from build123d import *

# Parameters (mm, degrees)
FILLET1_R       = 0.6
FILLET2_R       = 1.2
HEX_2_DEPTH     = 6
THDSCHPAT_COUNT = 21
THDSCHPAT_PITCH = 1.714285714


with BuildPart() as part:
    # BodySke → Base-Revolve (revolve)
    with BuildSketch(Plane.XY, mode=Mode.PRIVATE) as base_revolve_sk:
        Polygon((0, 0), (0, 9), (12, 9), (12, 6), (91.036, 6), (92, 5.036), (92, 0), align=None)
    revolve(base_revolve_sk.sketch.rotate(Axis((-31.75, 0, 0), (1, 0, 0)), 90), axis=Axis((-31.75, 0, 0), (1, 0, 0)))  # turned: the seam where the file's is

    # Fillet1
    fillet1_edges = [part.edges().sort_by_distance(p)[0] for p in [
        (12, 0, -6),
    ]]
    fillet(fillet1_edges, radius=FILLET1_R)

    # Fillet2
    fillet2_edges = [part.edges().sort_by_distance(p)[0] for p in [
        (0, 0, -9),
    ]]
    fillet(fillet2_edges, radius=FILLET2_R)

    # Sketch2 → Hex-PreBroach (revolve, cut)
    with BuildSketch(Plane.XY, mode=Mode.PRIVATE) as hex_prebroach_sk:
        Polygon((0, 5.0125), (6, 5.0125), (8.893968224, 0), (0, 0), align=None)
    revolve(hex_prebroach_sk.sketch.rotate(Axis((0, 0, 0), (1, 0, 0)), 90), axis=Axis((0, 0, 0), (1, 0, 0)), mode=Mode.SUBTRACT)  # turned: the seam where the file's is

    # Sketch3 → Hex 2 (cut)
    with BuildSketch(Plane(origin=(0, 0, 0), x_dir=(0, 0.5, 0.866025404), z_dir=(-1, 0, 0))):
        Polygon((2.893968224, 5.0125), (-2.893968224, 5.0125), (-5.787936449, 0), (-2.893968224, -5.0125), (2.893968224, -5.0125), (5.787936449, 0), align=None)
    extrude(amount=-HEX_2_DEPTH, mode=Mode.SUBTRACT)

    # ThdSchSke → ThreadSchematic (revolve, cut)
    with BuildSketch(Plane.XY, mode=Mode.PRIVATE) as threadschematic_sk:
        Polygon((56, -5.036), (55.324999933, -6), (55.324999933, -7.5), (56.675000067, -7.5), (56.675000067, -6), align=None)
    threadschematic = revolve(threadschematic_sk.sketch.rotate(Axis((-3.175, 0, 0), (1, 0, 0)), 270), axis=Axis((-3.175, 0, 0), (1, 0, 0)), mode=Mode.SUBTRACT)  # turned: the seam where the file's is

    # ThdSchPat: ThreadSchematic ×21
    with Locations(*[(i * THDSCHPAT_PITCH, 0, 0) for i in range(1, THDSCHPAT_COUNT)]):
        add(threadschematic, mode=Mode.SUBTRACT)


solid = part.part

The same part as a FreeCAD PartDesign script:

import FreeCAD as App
import Part
import Sketcher
from FreeCAD import Vector
Q = App.Units.Quantity


def edges_at(feature, points):
    """Names of the edges that pass closest to the given points."""
    edges = feature.Shape.Edges
    near = lambda p: min(range(len(edges)), key=lambda i: edges[i].distToShape(Part.Vertex(*p))[0])
    return sorted({f"Edge{near(p) + 1}" for p in points})


def add_polygon(sketch, points):
    """Adds a closed chain of lines whose ends are joined by coincident constraints."""
    first, n = sketch.GeometryCount, len(points)
    for a, b in zip(points, points[1:] + points[:1]):
        sketch.addGeometry(Part.LineSegment(App.Vector(*a, 0), App.Vector(*b, 0)), False)
    for i in range(n):
        sketch.addConstraint(Sketcher.Constraint("Coincident", first + i, 2, first + (i + 1) % n, 1))

doc = App.newDocument("Part")
body = doc.addObject("PartDesign::Body", "Body")

# Sketch on XY plane
sketch1 = body.newObject("Sketcher::SketchObject", "Sketch")
sketch1.AttachmentSupport = (doc.getObject("XY_Plane"), [""])
sketch1.MapMode = "FlatFace"
add_polygon(sketch1, [(0, 9), (0, 0), (92, 0), (92, 5), (91, 6), (12, 6), (12, 9)])  # lines 0-6
sketch1.addConstraint([
    Sketcher.Constraint("Vertical", 0),
    Sketcher.Constraint("Horizontal", 1),
    Sketcher.Constraint("Vertical", 2),
    Sketcher.Constraint("Horizontal", 4),
    Sketcher.Constraint("Vertical", 5),
    Sketcher.Constraint("Horizontal", 6),
    Sketcher.Constraint("Coincident", 0, 2, -1, 1),
    Sketcher.Constraint("DistanceX", 1, 1, 1, 2, 92.0),
    Sketcher.Constraint("DistanceX", 6, 2, 6, 1, 12.0),
    Sketcher.Constraint("DistanceY", 0, 2, 0, 1, 9.0),
    Sketcher.Constraint("DistanceY", 5, 1, 5, 2, 3.0),
    Sketcher.Constraint("Angle", 3, Q("135 deg")),
    Sketcher.Constraint("DistanceX", 4, 2, 4, 1, 79.036),
])
revolution = body.newObject("PartDesign::Revolution", "Revolution")
revolution.Profile = sketch1
revolution.ReferenceAxis = (sketch1, ["H_Axis"])
revolution.Angle = 360
doc.recompute()

fillet = body.newObject("PartDesign::Fillet", "Fillet")
fillet.Base = (revolution, edges_at(revolution, [(12, 0, -6)]))
fillet.Radius = 0.6
doc.recompute()

fillet2 = body.newObject("PartDesign::Fillet", "Fillet001")
fillet2.Base = (fillet, edges_at(fillet, [(0, 0, -9)]))
fillet2.Radius = 1.2

# Sketch on XY plane
sketch2 = body.newObject("Sketcher::SketchObject", "Sketch001")
sketch2.AttachmentSupport = (doc.getObject("XY_Plane"), [""])
sketch2.MapMode = "FlatFace"
add_polygon(sketch2, [(6, 5), (0, 5), (0, 0), (9, 0)])  # lines 0-3
sketch2.addConstraint([
    Sketcher.Constraint("Horizontal", 0),
    Sketcher.Constraint("Vertical", 1),
    Sketcher.Constraint("Horizontal", 2),
    Sketcher.Constraint("Coincident", 1, 2, -1, 1),
    Sketcher.Constraint("DistanceX", 0, 2, 0, 1, 6.0),
    Sketcher.Constraint("Angle", 3, Q("120 deg")),
    Sketcher.Constraint("DistanceY", 1, 2, 1, 1, 5.0125),
])
groove = body.newObject("PartDesign::Groove", "Groove")
groove.Profile = sketch2
groove.ReferenceAxis = (sketch2, ["H_Axis"])
groove.Angle = 360

# Sketch on YZ plane
sketch3 = body.newObject("Sketcher::SketchObject", "Sketch002")
sketch3.AttachmentSupport = (doc.getObject("YZ_Plane"), [""])
sketch3.MapMode = "FlatFace"
add_polygon(sketch3, [(6, 0), (3, -5), (-3, -5), (-6, 0), (-3, 5), (3, 5)])  # lines 0-5
sketch3.addConstraint([
    Sketcher.Constraint("Horizontal", 1),
    Sketcher.Constraint("Horizontal", 4),
    Sketcher.Constraint("Symmetric", 0, 2, 3, 2, -1, 1),
    Sketcher.Constraint("Symmetric", 2, 2, 5, 2, -1, 1),
    Sketcher.Constraint("PointOnObject", 2, 2, -1),
    Sketcher.Constraint("Parallel", 2, 5),
    Sketcher.Constraint("Vertical", 1, 2, 3, 2),
    Sketcher.Constraint("Angle", 0, Q("-120 deg")),
    Sketcher.Constraint("DistanceY", 1, 2, 3, 2, 10.025),
    Sketcher.Constraint("DistanceX", 1, 2, 1, 1, 5.787936),
])
pocket1 = body.newObject("PartDesign::Pocket", "Pocket")
pocket1.Profile = sketch3
pocket1.Length = 6
pocket1.Reversed = True

# Sketch on XY plane
sketch4 = body.newObject("Sketcher::SketchObject", "Sketch003")
sketch4.AttachmentSupport = (doc.getObject("XY_Plane"), [""])
sketch4.MapMode = "FlatFace"
add_polygon(sketch4, [(56, -5), (55.3, -6), (55.3, -7.5), (56.7, -7.5), (56.7, -6)])  # lines 0-4
sketch4.addConstraint([
    Sketcher.Constraint("Vertical", 1),
    Sketcher.Constraint("Horizontal", 2),
    Sketcher.Constraint("Vertical", 3),
    Sketcher.Constraint("Horizontal", 0, 2, 3, 2),
    Sketcher.Constraint("Equal", 0, 4),
    Sketcher.Constraint("Angle", 0, Q("-125 deg")),
    Sketcher.Constraint("DistanceY", 1, 2, 1, 1, 1.5),
    Sketcher.Constraint("DistanceY", 0, 2, -1, 1, 6.0),
    Sketcher.Constraint("DistanceX", -1, 1, 4, 2, 56.0),
    Sketcher.Constraint("DistanceX", 2, 1, 2, 2, 1.35),
])
groove2 = body.newObject("PartDesign::Groove", "Groove001")
groove2.Profile = sketch4
groove2.ReferenceAxis = (sketch4, ["H_Axis"])
groove2.Angle = 360
doc.recompute()

linearpattern = body.newObject("PartDesign::LinearPattern", "LinearPattern")
linearpattern.Originals = [groove2]
linearpattern.Direction = (doc.getObject("X_Axis"), [""])
linearpattern.Mode = "offset"
linearpattern.Offset = 1.714286
linearpattern.Occurrences = 21
body.Tip = linearpattern

doc.recompute()
